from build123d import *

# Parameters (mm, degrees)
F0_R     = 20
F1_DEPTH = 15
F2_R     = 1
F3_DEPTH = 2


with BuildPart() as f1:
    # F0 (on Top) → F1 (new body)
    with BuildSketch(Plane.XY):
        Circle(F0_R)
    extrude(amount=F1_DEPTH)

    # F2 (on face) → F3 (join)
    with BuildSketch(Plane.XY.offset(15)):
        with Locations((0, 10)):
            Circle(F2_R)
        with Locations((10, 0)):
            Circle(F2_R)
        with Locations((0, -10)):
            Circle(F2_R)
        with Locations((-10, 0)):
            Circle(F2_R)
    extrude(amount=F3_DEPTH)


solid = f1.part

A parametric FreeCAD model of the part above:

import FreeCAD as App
import Part
import Sketcher

V = App.Vector

doc = App.newDocument("Part")
params = doc.addObject("Spreadsheet::Sheet", "Params")
for row, (alias, value) in enumerate([
    ("sketch1_diameter", "40 mm"),
    ("pad1_length", "15 mm"),
    ("sketch2_diameter", "2 mm"),
    ("pad2_length", "2 mm"),
], start=1):
    params.set(f"A{row}", alias)
    params.set(f"B{row}", "=" + value)
    params.setAlias(f"B{row}", alias)

body = doc.addObject("PartDesign::Body", "Body")

sketch1 = body.newObject("Sketcher::SketchObject", "Sketch")
sketch1.AttachmentSupport = (doc.getObject("XY_Plane"), [""])
sketch1.MapMode = "FlatFace"
sketch1.addGeometry(Part.Circle(V(0, 0, 0), V(0, 0, 1), 20), False)
sketch1.addConstraint([
    Sketcher.Constraint("Coincident", 0, 3, -1, 1),
    Sketcher.Constraint("Diameter", 0, 40.0),
])
sketch1.setExpression("Constraints[1]", "Params.sketch1_diameter")
pad1 = body.newObject("PartDesign::Pad", "Pad")
pad1.Profile = sketch1
pad1.setExpression("Length", "Params.pad1_length")

sketch2 = body.newObject("Sketcher::SketchObject", "Sketch001")
sketch2.AttachmentSupport = (doc.getObject("XY_Plane"), [""])
sketch2.MapMode = "FlatFace"
sketch2.AttachmentOffset = App.Placement(V(0, 0, 15), App.Rotation())
sketch2.addGeometry([
    Part.Circle(V(0, 10, 0), V(0, 0, 1), 1),
    Part.Circle(V(10, 0, 0), V(0, 0, 1), 1),
    Part.Circle(V(0, -10, 0), V(0, 0, 1), 1),
    Part.Circle(V(-10, 0, 0), V(0, 0, 1), 1),
], False)
sketch2.addConstraint([
    Sketcher.Constraint("Equal", 0, 1),
    Sketcher.Constraint("Equal", 1, 2),
    Sketcher.Constraint("Equal", 2, 3),
    Sketcher.Constraint("Symmetric", 0, 3, 2, 3, -1, 1),
    Sketcher.Constraint("Symmetric", 1, 3, 3, 3, -1, 1),
    Sketcher.Constraint("PointOnObject", 0, 3, -2),
    Sketcher.Constraint("PointOnObject", 1, 3, -1),
    Sketcher.Constraint("Diameter", 0, 2.0),
    Sketcher.Constraint("DistanceY", -1, 1, 0, 3, 10.0),
    Sketcher.Constraint("DistanceX", -1, 1, 1, 3, 10.0),
])
sketch2.setExpression("Constraints[7]", "Params.sketch2_diameter")
pad2 = body.newObject("PartDesign::Pad", "Pad001")
pad2.Profile = sketch2
pad2.setExpression("Length", "Params.pad2_length")

doc.recompute()
